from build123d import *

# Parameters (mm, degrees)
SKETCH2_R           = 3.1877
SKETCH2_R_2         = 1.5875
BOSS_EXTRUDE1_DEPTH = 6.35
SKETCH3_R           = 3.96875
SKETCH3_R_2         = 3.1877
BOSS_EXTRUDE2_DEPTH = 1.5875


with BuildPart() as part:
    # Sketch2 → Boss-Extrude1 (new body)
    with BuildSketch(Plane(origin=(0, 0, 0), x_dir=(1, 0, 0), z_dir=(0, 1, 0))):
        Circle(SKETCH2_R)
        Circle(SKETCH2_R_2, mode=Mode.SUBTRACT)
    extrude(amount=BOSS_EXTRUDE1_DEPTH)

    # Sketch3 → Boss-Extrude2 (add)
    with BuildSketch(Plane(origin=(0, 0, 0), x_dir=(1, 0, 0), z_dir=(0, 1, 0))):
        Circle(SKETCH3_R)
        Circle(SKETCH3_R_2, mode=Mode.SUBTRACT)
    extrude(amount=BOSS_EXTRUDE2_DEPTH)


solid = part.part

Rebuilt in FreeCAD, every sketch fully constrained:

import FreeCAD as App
import Part
import Sketcher
from FreeCAD import Vector
Q = App.Units.Quantity

doc = App.newDocument("Part")
body = doc.addObject("PartDesign::Body", "Body")

# Sketch on XZ plane
sketch1 = body.newObject("Sketcher::SketchObject", "Sketch")
sketch1.AttachmentSupport = (doc.getObject("XZ_Plane"), [""])
sketch1.MapMode = "FlatFace"
sketch1.addGeometry([
    Part.Circle(Vector(0, 0, 0), Vector(0, 0, 1), 3.1877),
    Part.Circle(Vector(0, 0, 0), Vector(0, 0, 1), 1.5875),
], False)
sketch1.addConstraint([
    Sketcher.Constraint("Coincident", 0, 3, -1, 1),
    Sketcher.Constraint("Coincident", 1, 3, -1, 1),
    Sketcher.Constraint("Diameter", 0, Q("0.251 in")),
    Sketcher.Constraint("Diameter", 1, Q("0.125 in")),
])
pad1 = body.newObject("PartDesign::Pad", "Pad")
pad1.Profile = sketch1
pad1.Length = Q("0.25 in")
pad1.Reversed = True

# Sketch on XZ plane
sketch2 = body.newObject("Sketcher::SketchObject", "Sketch001")
sketch2.AttachmentSupport = (doc.getObject("XZ_Plane"), [""])
sketch2.MapMode = "FlatFace"
sketch2.addGeometry([
    Part.Circle(Vector(0, 0, 0), Vector(0, 0, 1), 3.96875),
    Part.Circle(Vector(0, 0, 0), Vector(0, 0, 1), 3.1877),
], False)
sketch2.addConstraint([
    Sketcher.Constraint("Coincident", 0, 3, -1, 1),
    Sketcher.Constraint("Coincident", 1, 3, -1, 1),
    Sketcher.Constraint("Diameter", 0, Q("0.3125 in")),
    Sketcher.Constraint("Diameter", 1, Q("0.251 in")),
])
pad2 = body.newObject("PartDesign::Pad", "Pad001")
pad2.Profile = sketch2
pad2.Length = Q("0.0625 in")
pad2.Reversed = True

doc.recompute()
